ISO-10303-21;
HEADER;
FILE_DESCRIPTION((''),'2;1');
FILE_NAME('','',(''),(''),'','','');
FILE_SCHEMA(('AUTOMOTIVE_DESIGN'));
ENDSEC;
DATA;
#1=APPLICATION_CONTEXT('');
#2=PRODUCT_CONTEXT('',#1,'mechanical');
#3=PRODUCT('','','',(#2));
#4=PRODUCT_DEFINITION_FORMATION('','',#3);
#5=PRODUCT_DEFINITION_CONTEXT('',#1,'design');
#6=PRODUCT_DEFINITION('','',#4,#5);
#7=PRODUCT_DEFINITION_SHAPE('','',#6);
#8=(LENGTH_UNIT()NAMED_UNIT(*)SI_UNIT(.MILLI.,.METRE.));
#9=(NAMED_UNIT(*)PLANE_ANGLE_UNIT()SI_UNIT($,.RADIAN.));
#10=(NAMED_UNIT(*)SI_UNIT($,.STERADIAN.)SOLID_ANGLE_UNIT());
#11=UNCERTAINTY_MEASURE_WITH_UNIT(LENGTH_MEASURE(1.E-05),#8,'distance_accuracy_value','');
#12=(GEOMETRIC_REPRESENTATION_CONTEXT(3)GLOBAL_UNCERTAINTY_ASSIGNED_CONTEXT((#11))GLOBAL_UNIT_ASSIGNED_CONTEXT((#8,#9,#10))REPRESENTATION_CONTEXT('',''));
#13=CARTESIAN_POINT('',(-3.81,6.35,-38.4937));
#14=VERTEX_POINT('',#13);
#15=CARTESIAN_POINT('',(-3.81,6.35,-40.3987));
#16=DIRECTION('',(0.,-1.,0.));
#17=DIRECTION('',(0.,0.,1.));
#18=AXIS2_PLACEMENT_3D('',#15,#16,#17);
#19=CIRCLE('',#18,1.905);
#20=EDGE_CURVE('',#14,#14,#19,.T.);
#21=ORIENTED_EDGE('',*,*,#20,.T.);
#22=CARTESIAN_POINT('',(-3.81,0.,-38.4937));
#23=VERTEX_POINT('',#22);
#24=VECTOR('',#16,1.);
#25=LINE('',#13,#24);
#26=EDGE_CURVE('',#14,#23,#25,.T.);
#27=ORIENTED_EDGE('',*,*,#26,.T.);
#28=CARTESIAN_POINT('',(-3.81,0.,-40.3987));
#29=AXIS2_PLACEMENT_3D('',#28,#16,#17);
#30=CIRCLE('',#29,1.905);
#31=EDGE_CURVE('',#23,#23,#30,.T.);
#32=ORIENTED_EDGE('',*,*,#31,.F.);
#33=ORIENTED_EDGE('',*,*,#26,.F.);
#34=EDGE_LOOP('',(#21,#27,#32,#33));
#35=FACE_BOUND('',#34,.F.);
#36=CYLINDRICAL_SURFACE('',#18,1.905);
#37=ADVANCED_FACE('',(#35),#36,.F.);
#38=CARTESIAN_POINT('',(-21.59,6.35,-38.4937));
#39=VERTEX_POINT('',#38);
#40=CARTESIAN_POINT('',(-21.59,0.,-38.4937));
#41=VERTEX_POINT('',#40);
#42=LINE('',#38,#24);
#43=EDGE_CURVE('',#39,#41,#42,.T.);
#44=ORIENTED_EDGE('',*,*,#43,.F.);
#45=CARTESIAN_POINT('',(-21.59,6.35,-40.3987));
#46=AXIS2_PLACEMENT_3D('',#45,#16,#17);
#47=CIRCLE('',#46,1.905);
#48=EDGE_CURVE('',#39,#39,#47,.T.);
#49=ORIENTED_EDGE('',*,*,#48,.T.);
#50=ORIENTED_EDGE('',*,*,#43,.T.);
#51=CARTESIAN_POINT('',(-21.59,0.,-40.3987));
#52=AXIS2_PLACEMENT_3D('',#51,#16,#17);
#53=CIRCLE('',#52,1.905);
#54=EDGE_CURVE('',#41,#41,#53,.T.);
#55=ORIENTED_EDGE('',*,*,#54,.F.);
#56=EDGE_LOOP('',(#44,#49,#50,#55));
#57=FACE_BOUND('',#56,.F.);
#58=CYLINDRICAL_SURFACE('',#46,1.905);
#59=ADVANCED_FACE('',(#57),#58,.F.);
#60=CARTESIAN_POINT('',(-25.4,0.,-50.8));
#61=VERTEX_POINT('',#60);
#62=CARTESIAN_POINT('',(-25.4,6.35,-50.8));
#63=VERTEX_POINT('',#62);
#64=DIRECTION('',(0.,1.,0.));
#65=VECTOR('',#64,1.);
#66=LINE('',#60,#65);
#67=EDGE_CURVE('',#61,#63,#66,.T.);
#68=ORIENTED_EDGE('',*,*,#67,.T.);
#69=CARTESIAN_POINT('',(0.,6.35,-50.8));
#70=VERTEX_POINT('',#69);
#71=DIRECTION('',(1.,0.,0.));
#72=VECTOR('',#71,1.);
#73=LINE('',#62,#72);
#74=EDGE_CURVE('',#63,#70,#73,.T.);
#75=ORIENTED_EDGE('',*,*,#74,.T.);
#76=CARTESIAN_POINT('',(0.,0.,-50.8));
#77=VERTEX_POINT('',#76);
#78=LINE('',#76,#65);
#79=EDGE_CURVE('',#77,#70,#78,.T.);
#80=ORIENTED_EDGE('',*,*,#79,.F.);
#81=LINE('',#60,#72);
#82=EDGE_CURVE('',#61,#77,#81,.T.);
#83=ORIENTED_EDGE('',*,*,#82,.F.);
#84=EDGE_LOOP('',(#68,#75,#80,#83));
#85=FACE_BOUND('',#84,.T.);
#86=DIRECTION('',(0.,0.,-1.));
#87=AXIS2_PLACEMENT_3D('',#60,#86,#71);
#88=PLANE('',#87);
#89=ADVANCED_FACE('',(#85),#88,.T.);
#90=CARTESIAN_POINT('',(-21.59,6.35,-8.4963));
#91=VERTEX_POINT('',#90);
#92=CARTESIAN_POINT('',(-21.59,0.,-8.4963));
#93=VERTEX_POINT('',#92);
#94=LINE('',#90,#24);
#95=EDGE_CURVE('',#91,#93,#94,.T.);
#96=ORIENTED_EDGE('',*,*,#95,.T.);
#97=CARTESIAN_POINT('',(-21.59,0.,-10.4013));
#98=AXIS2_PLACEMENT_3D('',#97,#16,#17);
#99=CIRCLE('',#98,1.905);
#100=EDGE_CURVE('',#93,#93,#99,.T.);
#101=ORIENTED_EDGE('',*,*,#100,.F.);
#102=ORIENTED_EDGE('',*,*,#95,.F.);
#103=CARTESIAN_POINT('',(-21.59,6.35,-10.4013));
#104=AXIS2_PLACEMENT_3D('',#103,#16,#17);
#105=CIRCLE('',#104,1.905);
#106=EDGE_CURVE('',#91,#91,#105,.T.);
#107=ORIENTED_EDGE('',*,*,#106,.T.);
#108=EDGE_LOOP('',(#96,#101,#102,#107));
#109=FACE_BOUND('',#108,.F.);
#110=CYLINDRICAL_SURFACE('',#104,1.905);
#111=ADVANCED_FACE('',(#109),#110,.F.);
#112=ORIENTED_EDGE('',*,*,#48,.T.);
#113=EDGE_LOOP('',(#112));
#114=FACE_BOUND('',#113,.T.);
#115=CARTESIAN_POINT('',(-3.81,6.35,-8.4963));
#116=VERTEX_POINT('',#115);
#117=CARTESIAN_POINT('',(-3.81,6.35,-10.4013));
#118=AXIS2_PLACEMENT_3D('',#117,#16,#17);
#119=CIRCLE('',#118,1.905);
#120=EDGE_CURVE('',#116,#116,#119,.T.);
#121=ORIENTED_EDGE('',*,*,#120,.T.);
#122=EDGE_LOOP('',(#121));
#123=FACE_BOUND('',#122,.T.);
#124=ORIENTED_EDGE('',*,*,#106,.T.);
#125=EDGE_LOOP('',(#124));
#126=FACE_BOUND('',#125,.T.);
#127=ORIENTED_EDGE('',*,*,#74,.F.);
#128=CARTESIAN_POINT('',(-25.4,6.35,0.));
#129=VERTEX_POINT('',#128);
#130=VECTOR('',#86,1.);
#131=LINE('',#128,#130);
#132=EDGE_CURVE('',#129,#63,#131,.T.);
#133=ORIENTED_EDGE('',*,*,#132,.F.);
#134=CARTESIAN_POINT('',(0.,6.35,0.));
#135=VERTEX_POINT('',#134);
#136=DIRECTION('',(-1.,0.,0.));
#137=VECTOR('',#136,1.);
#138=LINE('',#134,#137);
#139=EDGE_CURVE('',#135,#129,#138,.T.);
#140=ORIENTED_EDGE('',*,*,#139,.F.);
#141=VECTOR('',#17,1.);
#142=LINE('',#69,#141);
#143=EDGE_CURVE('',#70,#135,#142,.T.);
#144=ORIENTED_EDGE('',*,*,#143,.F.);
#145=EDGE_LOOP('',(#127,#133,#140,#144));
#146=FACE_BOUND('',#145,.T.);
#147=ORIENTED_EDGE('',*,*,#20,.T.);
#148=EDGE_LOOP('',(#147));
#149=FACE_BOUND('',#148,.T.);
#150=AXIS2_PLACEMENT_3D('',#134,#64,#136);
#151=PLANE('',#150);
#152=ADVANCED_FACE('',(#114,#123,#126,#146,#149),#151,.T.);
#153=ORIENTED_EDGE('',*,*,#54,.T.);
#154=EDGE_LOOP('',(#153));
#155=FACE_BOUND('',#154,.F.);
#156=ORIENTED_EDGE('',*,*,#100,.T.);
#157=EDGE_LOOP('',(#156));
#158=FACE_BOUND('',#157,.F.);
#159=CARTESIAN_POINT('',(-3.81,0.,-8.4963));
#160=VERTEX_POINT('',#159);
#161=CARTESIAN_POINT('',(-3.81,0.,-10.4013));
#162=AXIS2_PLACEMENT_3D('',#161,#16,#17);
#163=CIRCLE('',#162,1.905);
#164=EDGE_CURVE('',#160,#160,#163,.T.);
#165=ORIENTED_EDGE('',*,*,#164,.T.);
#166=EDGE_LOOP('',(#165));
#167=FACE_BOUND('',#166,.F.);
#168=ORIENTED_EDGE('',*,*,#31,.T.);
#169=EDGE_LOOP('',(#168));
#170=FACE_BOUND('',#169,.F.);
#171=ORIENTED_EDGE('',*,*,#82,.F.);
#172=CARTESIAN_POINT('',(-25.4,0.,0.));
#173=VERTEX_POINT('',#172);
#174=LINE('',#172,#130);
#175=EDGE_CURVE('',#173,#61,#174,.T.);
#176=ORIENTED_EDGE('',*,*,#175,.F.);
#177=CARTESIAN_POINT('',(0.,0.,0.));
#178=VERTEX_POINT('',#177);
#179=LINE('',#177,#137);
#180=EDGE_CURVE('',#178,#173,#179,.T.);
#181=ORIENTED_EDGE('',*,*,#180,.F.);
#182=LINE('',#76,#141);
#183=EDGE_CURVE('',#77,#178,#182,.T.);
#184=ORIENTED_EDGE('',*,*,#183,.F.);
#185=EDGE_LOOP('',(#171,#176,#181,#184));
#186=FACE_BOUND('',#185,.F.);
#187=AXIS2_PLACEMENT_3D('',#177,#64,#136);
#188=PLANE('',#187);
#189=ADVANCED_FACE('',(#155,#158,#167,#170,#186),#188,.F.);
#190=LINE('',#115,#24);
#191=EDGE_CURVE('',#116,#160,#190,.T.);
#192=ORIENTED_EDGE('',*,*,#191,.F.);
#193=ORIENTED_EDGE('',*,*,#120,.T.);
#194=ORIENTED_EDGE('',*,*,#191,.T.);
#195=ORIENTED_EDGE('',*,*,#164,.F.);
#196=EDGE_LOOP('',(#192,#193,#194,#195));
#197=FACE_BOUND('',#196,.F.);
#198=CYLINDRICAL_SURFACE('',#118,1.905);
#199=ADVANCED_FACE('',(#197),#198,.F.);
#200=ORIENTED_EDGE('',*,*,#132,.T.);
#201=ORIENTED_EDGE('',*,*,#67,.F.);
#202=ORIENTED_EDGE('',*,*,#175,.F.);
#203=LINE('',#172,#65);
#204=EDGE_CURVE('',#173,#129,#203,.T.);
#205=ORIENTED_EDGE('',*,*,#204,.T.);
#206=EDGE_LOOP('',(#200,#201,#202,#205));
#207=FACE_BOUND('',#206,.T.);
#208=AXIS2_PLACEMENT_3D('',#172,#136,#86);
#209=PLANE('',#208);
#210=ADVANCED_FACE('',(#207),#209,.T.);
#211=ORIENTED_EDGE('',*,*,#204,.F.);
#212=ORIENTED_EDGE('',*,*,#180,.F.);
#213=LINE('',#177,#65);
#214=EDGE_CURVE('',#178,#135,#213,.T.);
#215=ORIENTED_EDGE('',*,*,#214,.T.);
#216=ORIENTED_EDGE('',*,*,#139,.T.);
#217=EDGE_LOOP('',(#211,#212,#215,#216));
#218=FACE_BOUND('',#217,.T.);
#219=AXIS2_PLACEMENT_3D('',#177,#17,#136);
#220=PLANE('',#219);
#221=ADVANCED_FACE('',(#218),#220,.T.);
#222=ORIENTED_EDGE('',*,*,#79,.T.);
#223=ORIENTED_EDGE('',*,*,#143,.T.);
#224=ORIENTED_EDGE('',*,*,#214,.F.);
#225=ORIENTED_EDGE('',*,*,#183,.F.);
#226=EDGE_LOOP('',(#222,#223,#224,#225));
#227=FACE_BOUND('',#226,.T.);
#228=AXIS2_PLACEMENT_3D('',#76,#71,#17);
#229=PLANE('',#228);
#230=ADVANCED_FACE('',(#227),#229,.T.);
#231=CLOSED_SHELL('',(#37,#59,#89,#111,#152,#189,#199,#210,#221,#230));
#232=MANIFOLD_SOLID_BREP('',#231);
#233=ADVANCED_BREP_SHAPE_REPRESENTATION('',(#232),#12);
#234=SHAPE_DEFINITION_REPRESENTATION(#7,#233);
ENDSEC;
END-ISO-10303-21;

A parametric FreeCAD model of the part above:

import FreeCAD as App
import Part
import Sketcher
from FreeCAD import Vector
Q = App.Units.Quantity


def add_polygon(sketch, points):
    """Adds a closed chain of lines whose ends are joined by coincident constraints."""
    first, n = sketch.GeometryCount, len(points)
    for a, b in zip(points, points[1:] + points[:1]):
        sketch.addGeometry(Part.LineSegment(App.Vector(*a, 0), App.Vector(*b, 0)), False)
    for i in range(n):
        sketch.addConstraint(Sketcher.Constraint("Coincident", first + i, 2, first + (i + 1) % n, 1))

doc = App.newDocument("Part")
body = doc.addObject("PartDesign::Body", "Body")

# Sketch on XZ plane
sketch1 = doc.addObject("Sketcher::SketchObject", "Sketch")
body.addObject(sketch1)
sketch1.AttachmentSupport = (doc.XZ_Plane, [""])
sketch1.MapMode = "FlatFace"
add_polygon(sketch1, [(-25.4, 0), (0, 0), (0, -50.8), (-25.4, -50.8)])  # lines 0-3
sketch1.addConstraint([
    Sketcher.Constraint("Horizontal", 0),
    Sketcher.Constraint("Vertical", 1),
    Sketcher.Constraint("Horizontal", 2),
    Sketcher.Constraint("Vertical", 3),
    Sketcher.Constraint("Coincident", 0, 2, -1, 1),
    Sketcher.Constraint("DistanceX", 0, 1, 0, 2, Q("1 in")),
    Sketcher.Constraint("DistanceY", 1, 2, 1, 1, Q("2 in")),
])
pad1 = doc.addObject("PartDesign::Pad", "Pad")
body.addObject(pad1)
pad1.Profile = sketch1
pad1.Length = Q("0.25 in")
pad1.Reversed = True

# Sketch on XZ plane
sketch2 = doc.addObject("Sketcher::SketchObject", "Sketch001")
body.addObject(sketch2)
sketch2.AttachmentSupport = (doc.XZ_Plane, [""])
sketch2.MapMode = "FlatFace"
sketch2.AttachmentOffset = App.Placement(Vector(0, 0, -0.25 * 25.4), App.Rotation())
sketch2.addGeometry([
    Part.Circle(Vector(-21.59, -10.4013, 0), Vector(0, 0, 1), 1.905),
    Part.Circle(Vector(-21.59, -40.3987, 0), Vector(0, 0, 1), 1.905),
    Part.Circle(Vector(-3.81, -10.4013, 0), Vector(0, 0, 1), 1.905),
    Part.Circle(Vector(-3.81, -40.3987, 0), Vector(0, 0, 1), 1.905),
], False)
sketch2.addConstraint([
    Sketcher.Constraint("Equal", 0, 1),
    Sketcher.Constraint("Equal", 1, 2),
    Sketcher.Constraint("Equal", 2, 3),
    Sketcher.Constraint("Horizontal", 0, 3, 2, 3),
    Sketcher.Constraint("Horizontal", 1, 3, 3, 3),
    Sketcher.Constraint("Vertical", 0, 3, 1, 3),
    Sketcher.Constraint("Vertical", 2, 3, 3, 3),
    Sketcher.Constraint("Diameter", 0, Q("0.15 in")),
    Sketcher.Constraint("DistanceX", 0, 3, 2, 3, Q("0.7 in")),
    Sketcher.Constraint("DistanceX", 0, 3, -1, 1, Q("0.85 in")),
    Sketcher.Constraint("DistanceY", 1, 3, 0, 3, Q("1.181 in")),
    Sketcher.Constraint("DistanceY", 0, 3, -1, 1, Q("0.4095 in")),
])
doc.recompute()
hole = doc.addObject("PartDesign::Hole", "Hole")
body.addObject(hole)
hole.Profile = sketch2
hole.ThreadType = "None"
hole.Diameter = Q("0.15 in")
hole.DepthType = "Dimension"
hole.Depth = Q("1 in")
hole.DrillPoint = "Angled"
hole.DrillPointAngle = 118
hole.Reversed = True

doc.recompute()
